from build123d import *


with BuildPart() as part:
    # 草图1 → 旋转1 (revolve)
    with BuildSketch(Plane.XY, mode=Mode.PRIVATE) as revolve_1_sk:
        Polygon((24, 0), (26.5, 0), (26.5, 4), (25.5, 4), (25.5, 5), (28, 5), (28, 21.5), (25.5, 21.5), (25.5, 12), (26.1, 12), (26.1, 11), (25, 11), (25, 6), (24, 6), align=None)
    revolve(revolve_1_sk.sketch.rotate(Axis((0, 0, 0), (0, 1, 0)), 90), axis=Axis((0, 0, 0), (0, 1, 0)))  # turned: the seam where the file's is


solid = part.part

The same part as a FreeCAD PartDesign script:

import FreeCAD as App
import Part
import Sketcher


def add_polygon(sketch, points):
    """Adds a closed chain of lines whose ends are joined by coincident constraints."""
    first, n = sketch.GeometryCount, len(points)
    for a, b in zip(points, points[1:] + points[:1]):
        sketch.addGeometry(Part.LineSegment(App.Vector(*a, 0), App.Vector(*b, 0)), False)
    for i in range(n):
        sketch.addConstraint(Sketcher.Constraint("Coincident", first + i, 2, first + (i + 1) % n, 1))

doc = App.newDocument("Part")
body = doc.addObject("PartDesign::Body", "Body")

sketch1 = doc.addObject("Sketcher::SketchObject", "Sketch")
body.addObject(sketch1)
sketch1.AttachmentSupport = (doc.XY_Plane, [""])
sketch1.MapMode = "FlatFace"
add_polygon(sketch1, [(24, 0), (26.5, 0), (26.5, 4), (25.5, 4), (25.5, 5), (28, 5), (28, 21.5), (25.5, 21.5), (25.5, 12), (26.1, 12), (26.1, 11), (25, 11), (25, 6), (24, 6)])
sketch1.addConstraint(Sketcher.Constraint("Horizontal", 0))
sketch1.addConstraint(Sketcher.Constraint("Vertical", 1))
sketch1.addConstraint(Sketcher.Constraint("Horizontal", 2))
sketch1.addConstraint(Sketcher.Constraint("Vertical", 3))
sketch1.addConstraint(Sketcher.Constraint("Horizontal", 4))
sketch1.addConstraint(Sketcher.Constraint("Vertical", 5))
sketch1.addConstraint(Sketcher.Constraint("Horizontal", 6))
sketch1.addConstraint(Sketcher.Constraint("Vertical", 7))
sketch1.addConstraint(Sketcher.Constraint("Horizontal", 8))
sketch1.addConstraint(Sketcher.Constraint("Vertical", 9))
sketch1.addConstraint(Sketcher.Constraint("Horizontal", 10))
sketch1.addConstraint(Sketcher.Constraint("Vertical", 11))
sketch1.addConstraint(Sketcher.Constraint("Horizontal", 12))
sketch1.addConstraint(Sketcher.Constraint("Vertical", 13))
sketch1.addConstraint(Sketcher.Constraint("PointOnObject", 0, 2, -1))
sketch1.addConstraint(Sketcher.Constraint("Vertical", 3, 2, 6, 2))
sketch1.addConstraint(Sketcher.Constraint("Equal", 0, 4))
sketch1.addConstraint(Sketcher.Constraint("Equal", 2, 12))
sketch1.addConstraint(Sketcher.Constraint("Equal", 12, 3))
sketch1.addConstraint(Sketcher.Constraint("Equal", 3, 9))
sketch1.addConstraint(Sketcher.Constraint("DistanceX", 2, 2, 2, 1, 1.0))
sketch1.addConstraint(Sketcher.Constraint("DistanceY", 1, 1, 1, 2, 4.0))
sketch1.addConstraint(Sketcher.Constraint("DistanceY", 11, 2, 11, 1, 5.0))
sketch1.addConstraint(Sketcher.Constraint("DistanceY", 13, 2, 13, 1, 6.0))
sketch1.addConstraint(Sketcher.Constraint("DistanceX", 0, 1, 0, 2, 2.5))
sketch1.addConstraint(Sketcher.Constraint("DistanceX", 8, 1, 8, 2, 0.6))
sketch1.addConstraint(Sketcher.Constraint("DistanceY", 5, 1, 5, 2, 16.5))
sketch1.addConstraint(Sketcher.Constraint("DistanceX", -1, 1, 4, 2, 28.0))
revolution = doc.addObject("PartDesign::Revolution", "Revolution")
body.addObject(revolution)
revolution.Profile = sketch1
revolution.ReferenceAxis = (sketch1, ["V_Axis"])
revolution.Angle = 360

doc.recompute()
